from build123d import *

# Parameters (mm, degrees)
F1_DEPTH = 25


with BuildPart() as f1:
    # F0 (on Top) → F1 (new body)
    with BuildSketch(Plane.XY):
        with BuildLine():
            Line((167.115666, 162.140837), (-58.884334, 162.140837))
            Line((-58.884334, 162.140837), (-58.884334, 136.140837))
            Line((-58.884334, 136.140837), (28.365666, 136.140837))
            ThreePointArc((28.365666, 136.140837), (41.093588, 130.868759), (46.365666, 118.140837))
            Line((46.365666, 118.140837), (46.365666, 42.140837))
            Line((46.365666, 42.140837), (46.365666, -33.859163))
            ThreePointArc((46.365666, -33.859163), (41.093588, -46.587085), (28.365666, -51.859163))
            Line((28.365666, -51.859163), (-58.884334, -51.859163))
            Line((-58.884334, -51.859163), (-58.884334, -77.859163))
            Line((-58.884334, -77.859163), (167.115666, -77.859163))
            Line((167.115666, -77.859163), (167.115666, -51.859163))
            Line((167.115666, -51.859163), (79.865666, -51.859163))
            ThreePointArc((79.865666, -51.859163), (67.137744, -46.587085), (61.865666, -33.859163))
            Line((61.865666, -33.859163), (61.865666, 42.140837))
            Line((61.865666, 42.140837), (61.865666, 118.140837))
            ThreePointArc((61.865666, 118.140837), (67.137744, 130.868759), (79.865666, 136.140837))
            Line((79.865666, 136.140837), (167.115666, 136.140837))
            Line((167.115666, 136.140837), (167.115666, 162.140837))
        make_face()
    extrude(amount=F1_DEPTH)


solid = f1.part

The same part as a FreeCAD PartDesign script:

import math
import FreeCAD as App
import Part
import Sketcher
from FreeCAD import Vector

doc = App.newDocument("Part")
body = doc.addObject("PartDesign::Body", "Body")

sketch1 = body.newObject("Sketcher::SketchObject", "Sketch")
sketch1.AttachmentSupport = (doc.getObject("XY_Plane"), [""])
sketch1.MapMode = "FlatFace"
sketch1.addGeometry([
    Part.LineSegment(Vector(167, 162, 0), Vector(-59, 162, 0)),
    Part.LineSegment(Vector(-59, 162, 0), Vector(-59, 136, 0)),
    Part.LineSegment(Vector(-59, 136, 0), Vector(28, 136, 0)),
    Part.ArcOfCircle(Part.Circle(Vector(28, 118, 0), Vector(0, 0, 1), 18), math.radians(0), math.radians(90)),
    Part.LineSegment(Vector(46, 118, 0), Vector(46, -34, 0)),
    Part.ArcOfCircle(Part.Circle(Vector(28, -34, 0), Vector(0, 0, 1), 18), math.radians(-90), math.radians(0)),
    Part.LineSegment(Vector(28, -52, 0), Vector(-59, -52, 0)),
    Part.LineSegment(Vector(-59, -52, 0), Vector(-59, -78, 0)),
    Part.LineSegment(Vector(-59, -78, 0), Vector(167, -78, 0)),
    Part.LineSegment(Vector(167, -78, 0), Vector(167, -52, 0)),
    Part.LineSegment(Vector(167, -52, 0), Vector(80, -52, 0)),
    Part.ArcOfCircle(Part.Circle(Vector(80, -34, 0), Vector(0, 0, 1), 18), math.radians(-180), math.radians(-90)),
    Part.LineSegment(Vector(62, -34, 0), Vector(62, 118, 0)),
    Part.ArcOfCircle(Part.Circle(Vector(80, 118, 0), Vector(0, 0, 1), 18), math.radians(90), math.radians(180)),
    Part.LineSegment(Vector(80, 136, 0), Vector(167, 136, 0)),
    Part.LineSegment(Vector(167, 136, 0), Vector(167, 162, 0)),
], False)
sketch1.addConstraint([
    Sketcher.Constraint("Coincident", 0, 2, 1, 1),
    Sketcher.Constraint("Coincident", 1, 2, 2, 1),
    Sketcher.Constraint("Tangent", 2, 2, 3, 2),
    Sketcher.Constraint("Tangent", 3, 1, 4, 1),
    Sketcher.Constraint("Tangent", 4, 2, 5, 2),
    Sketcher.Constraint("Tangent", 5, 1, 6, 1),
    Sketcher.Constraint("Coincident", 6, 2, 7, 1),
    Sketcher.Constraint("Coincident", 7, 2, 8, 1),
    Sketcher.Constraint("Coincident", 8, 2, 9, 1),
    Sketcher.Constraint("Coincident", 9, 2, 10, 1),
    Sketcher.Constraint("Tangent", 10, 2, 11, 2),
    Sketcher.Constraint("Tangent", 11, 1, 12, 1),
    Sketcher.Constraint("Tangent", 12, 2, 13, 2),
    Sketcher.Constraint("Tangent", 13, 1, 14, 1),
    Sketcher.Constraint("Coincident", 14, 2, 15, 1),
    Sketcher.Constraint("Coincident", 15, 2, 0, 1),
    Sketcher.Constraint("Horizontal", 0),
    Sketcher.Constraint("Vertical", 1),
    Sketcher.Constraint("Horizontal", 2),
    Sketcher.Constraint("Vertical", 4),
    Sketcher.Constraint("Horizontal", 6),
    Sketcher.Constraint("Vertical", 7),
    Sketcher.Constraint("Horizontal", 8),
    Sketcher.Constraint("Vertical", 9),
    Sketcher.Constraint("Horizontal", 10),
    Sketcher.Constraint("Vertical", 12),
    Sketcher.Constraint("Horizontal", 14),
    Sketcher.Constraint("Vertical", 15),
    Sketcher.Constraint("Equal", 3, 5),
    Sketcher.Constraint("Equal", 5, 11),
    Sketcher.Constraint("Equal", 11, 13),
    Sketcher.Constraint("Horizontal", 5, 3, 11, 3),
    Sketcher.Constraint("Horizontal", 3, 3, 13, 3),
    Sketcher.Constraint("Vertical", 1, 2, 6, 2),
    Sketcher.Constraint("Vertical", 9, 2, 14, 2),
    Sketcher.Constraint("Equal", 6, 10),
    Sketcher.Constraint("Equal", 1, 7),
    Sketcher.Constraint("Radius", 3, 18.0),
    Sketcher.Constraint("DistanceX", 0, 2, 0, 1, 226.0),
    Sketcher.Constraint("DistanceY", 1, 2, 1, 1, 26.0),
    Sketcher.Constraint("DistanceY", 4, 2, 4, 1, 152.0),
    Sketcher.Constraint("DistanceX", 2, 1, 2, 2, 87.25),
    Sketcher.Constraint("DistanceX", -1, 1, 3, 3, 28.365666),
    Sketcher.Constraint("DistanceY", -1, 1, 3, 3, 118.140837),
])
pad1 = body.newObject("PartDesign::Pad", "Pad")
pad1.Profile = sketch1
pad1.Length = 25

doc.recompute()
